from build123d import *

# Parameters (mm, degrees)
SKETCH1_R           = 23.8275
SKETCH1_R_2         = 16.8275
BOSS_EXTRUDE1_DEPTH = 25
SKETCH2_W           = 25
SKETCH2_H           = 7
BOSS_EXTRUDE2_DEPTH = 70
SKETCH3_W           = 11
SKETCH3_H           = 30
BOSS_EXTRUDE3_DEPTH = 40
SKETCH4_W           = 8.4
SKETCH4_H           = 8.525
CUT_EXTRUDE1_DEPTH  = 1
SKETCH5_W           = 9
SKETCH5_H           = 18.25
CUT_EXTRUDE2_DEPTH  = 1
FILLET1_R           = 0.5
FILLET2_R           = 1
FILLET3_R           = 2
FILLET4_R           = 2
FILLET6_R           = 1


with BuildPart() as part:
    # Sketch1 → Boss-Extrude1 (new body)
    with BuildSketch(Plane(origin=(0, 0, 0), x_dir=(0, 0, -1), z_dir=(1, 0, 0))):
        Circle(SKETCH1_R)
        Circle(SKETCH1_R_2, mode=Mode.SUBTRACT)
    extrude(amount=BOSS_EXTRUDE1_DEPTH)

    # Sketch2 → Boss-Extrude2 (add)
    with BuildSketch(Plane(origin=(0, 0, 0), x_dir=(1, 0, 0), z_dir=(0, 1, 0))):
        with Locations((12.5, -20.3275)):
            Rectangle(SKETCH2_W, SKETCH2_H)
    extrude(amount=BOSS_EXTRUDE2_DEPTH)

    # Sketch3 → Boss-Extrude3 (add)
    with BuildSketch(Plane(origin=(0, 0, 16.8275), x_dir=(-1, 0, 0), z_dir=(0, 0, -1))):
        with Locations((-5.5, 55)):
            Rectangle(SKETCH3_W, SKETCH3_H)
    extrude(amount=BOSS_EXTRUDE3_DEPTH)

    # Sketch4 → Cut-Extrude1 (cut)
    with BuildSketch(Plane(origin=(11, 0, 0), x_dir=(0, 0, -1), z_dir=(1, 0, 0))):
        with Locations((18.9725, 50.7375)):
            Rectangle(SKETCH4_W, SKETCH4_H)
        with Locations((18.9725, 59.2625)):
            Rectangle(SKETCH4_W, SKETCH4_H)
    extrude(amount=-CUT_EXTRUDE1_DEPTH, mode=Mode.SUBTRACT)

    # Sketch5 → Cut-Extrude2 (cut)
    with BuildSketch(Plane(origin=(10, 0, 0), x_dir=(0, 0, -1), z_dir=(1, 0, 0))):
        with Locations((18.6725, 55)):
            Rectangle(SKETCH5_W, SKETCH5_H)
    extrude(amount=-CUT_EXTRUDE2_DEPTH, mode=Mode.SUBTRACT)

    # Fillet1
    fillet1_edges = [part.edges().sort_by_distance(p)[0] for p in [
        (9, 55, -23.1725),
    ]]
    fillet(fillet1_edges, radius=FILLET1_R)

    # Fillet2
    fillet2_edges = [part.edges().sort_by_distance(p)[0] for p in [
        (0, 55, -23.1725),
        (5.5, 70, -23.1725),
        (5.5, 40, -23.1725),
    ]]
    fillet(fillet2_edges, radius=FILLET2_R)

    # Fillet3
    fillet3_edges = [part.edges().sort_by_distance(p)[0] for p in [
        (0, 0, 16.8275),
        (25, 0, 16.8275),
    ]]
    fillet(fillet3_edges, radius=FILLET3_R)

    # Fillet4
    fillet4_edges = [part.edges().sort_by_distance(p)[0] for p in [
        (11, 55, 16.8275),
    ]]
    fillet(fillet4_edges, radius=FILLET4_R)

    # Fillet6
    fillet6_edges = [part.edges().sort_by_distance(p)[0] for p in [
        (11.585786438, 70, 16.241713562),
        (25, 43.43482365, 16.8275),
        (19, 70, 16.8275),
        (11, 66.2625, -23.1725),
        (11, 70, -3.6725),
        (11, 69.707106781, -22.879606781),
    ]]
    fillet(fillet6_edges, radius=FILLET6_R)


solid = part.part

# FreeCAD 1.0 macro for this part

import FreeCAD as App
import Part
import Sketcher


def edges_at(feature, points):
    """Names of the edges that pass closest to the given points."""
    edges = feature.Shape.Edges
    near = lambda p: min(range(len(edges)), key=lambda i: edges[i].distToShape(Part.Vertex(*p))[0])
    return sorted({f"Edge{near(p) + 1}" for p in points})

doc = App.newDocument("Part")
body = doc.addObject("PartDesign::Body", "Body")

sketch1 = doc.addObject("Sketcher::SketchObject", "Sketch")
body.addObject(sketch1)
sketch1.AttachmentSupport = (doc.YZ_Plane, [""])
sketch1.MapMode = "FlatFace"
sketch1.addGeometry(Part.Circle(App.Vector(0, 0, 0), App.Vector(0, 0, 1), 24), False)
sketch1.addGeometry(Part.Circle(App.Vector(0, 0, 0), App.Vector(0, 0, 1), 17), False)
sketch1.addConstraint(Sketcher.Constraint("Coincident", 0, 3, -1, 1))
sketch1.addConstraint(Sketcher.Constraint("Coincident", 1, 3, -1, 1))
sketch1.addConstraint(Sketcher.Constraint("Diameter", 0, 47.655))
sketch1.addConstraint(Sketcher.Constraint("Diameter", 1, 33.655))
pad1 = doc.addObject("PartDesign::Pad", "Pad")
body.addObject(pad1)
pad1.Profile = sketch1
pad1.Length = 25

sketch2 = doc.addObject("Sketcher::SketchObject", "Sketch001")
body.addObject(sketch2)
sketch2.AttachmentSupport = (doc.XZ_Plane, [""])
sketch2.MapMode = "FlatFace"
sketch2.addGeometry(Part.LineSegment(App.Vector(0, 17, 0), App.Vector(0, 24, 0)), False)
sketch2.addGeometry(Part.LineSegment(App.Vector(0, 24, 0), App.Vector(25, 24, 0)), False)
sketch2.addGeometry(Part.LineSegment(App.Vector(25, 24, 0), App.Vector(25, 17, 0)), False)
sketch2.addGeometry(Part.LineSegment(App.Vector(25, 17, 0), App.Vector(0, 17, 0)), False)
sketch2.addConstraint(Sketcher.Constraint("Coincident", 0, 2, 1, 1))
sketch2.addConstraint(Sketcher.Constraint("Coincident", 1, 2, 2, 1))
sketch2.addConstraint(Sketcher.Constraint("Coincident", 2, 2, 3, 1))
sketch2.addConstraint(Sketcher.Constraint("Coincident", 3, 2, 0, 1))
sketch2.addConstraint(Sketcher.Constraint("Vertical", 0))
sketch2.addConstraint(Sketcher.Constraint("Horizontal", 1))
sketch2.addConstraint(Sketcher.Constraint("Vertical", 2))
sketch2.addConstraint(Sketcher.Constraint("Horizontal", 3))
sketch2.addConstraint(Sketcher.Constraint("PointOnObject", 0, 2, -2))
sketch2.addConstraint(Sketcher.Constraint("DistanceX", 1, 1, 1, 2, 25.0))
sketch2.addConstraint(Sketcher.Constraint("DistanceY", 0, 1, 0, 2, 7.0))
sketch2.addConstraint(Sketcher.Constraint("DistanceY", -1, 1, 0, 2, 23.8275))
pad2 = doc.addObject("PartDesign::Pad", "Pad001")
body.addObject(pad2)
pad2.Profile = sketch2
pad2.Length = 70
pad2.Reversed = True

sketch3 = doc.addObject("Sketcher::SketchObject", "Sketch002")
body.addObject(sketch3)
sketch3.AttachmentSupport = (doc.XY_Plane, [""])
sketch3.MapMode = "FlatFace"
sketch3.AttachmentOffset = App.Placement(App.Vector(0, 0, 16.8275), App.Rotation())
sketch3.addGeometry(Part.LineSegment(App.Vector(11, 70, 0), App.Vector(11, 40, 0)), False)
sketch3.addGeometry(Part.LineSegment(App.Vector(11, 40, 0), App.Vector(0, 40, 0)), False)
sketch3.addGeometry(Part.LineSegment(App.Vector(0, 40, 0), App.Vector(0, 70, 0)), False)
sketch3.addGeometry(Part.LineSegment(App.Vector(0, 70, 0), App.Vector(11, 70, 0)), False)
sketch3.addConstraint(Sketcher.Constraint("Coincident", 0, 2, 1, 1))
sketch3.addConstraint(Sketcher.Constraint("Coincident", 1, 2, 2, 1))
sketch3.addConstraint(Sketcher.Constraint("Coincident", 2, 2, 3, 1))
sketch3.addConstraint(Sketcher.Constraint("Coincident", 3, 2, 0, 1))
sketch3.addConstraint(Sketcher.Constraint("Vertical", 0))
sketch3.addConstraint(Sketcher.Constraint("Horizontal", 1))
sketch3.addConstraint(Sketcher.Constraint("Vertical", 2))
sketch3.addConstraint(Sketcher.Constraint("Horizontal", 3))
sketch3.addConstraint(Sketcher.Constraint("PointOnObject", 1, 2, -2))
sketch3.addConstraint(Sketcher.Constraint("DistanceX", 1, 2, 1, 1, 11.0))
sketch3.addConstraint(Sketcher.Constraint("DistanceY", 0, 2, 0, 1, 30.0))
sketch3.addConstraint(Sketcher.Constraint("DistanceY", -1, 1, 0, 2, 40.0))
pad3 = doc.addObject("PartDesign::Pad", "Pad002")
body.addObject(pad3)
pad3.Profile = sketch3
pad3.Length = 40
pad3.Reversed = True

sketch4 = doc.addObject("Sketcher::SketchObject", "Sketch003")
body.addObject(sketch4)
sketch4.AttachmentSupport = (doc.YZ_Plane, [""])
sketch4.MapMode = "FlatFace"
sketch4.AttachmentOffset = App.Placement(App.Vector(0, 0, 11), App.Rotation())
sketch4.addGeometry(Part.LineSegment(App.Vector(46, -15, 0), App.Vector(46, -23, 0)), False)
sketch4.addGeometry(Part.LineSegment(App.Vector(46, -23, 0), App.Vector(64, -23, 0)), False)
sketch4.addGeometry(Part.LineSegment(App.Vector(64, -23, 0), App.Vector(64, -15, 0)), False)
sketch4.addGeometry(Part.LineSegment(App.Vector(64, -15, 0), App.Vector(46, -15, 0)), False)
sketch4.addConstraint(Sketcher.Constraint("Coincident", 0, 2, 1, 1))
sketch4.addConstraint(Sketcher.Constraint("Coincident", 1, 2, 2, 1))
sketch4.addConstraint(Sketcher.Constraint("Coincident", 2, 2, 3, 1))
sketch4.addConstraint(Sketcher.Constraint("Coincident", 3, 2, 0, 1))
sketch4.addConstraint(Sketcher.Constraint("Vertical", 0))
sketch4.addConstraint(Sketcher.Constraint("Horizontal", 1))
sketch4.addConstraint(Sketcher.Constraint("Vertical", 2))
sketch4.addConstraint(Sketcher.Constraint("Horizontal", 3))
sketch4.addConstraint(Sketcher.Constraint("DistanceY", 0, 2, 0, 1, 8.4))
sketch4.addConstraint(Sketcher.Constraint("DistanceX", 1, 1, 1, 2, 17.05))
sketch4.addConstraint(Sketcher.Constraint("DistanceX", -1, 1, 0, 2, 46.475))
sketch4.addConstraint(Sketcher.Constraint("DistanceY", 0, 2, -1, 1, 23.1725))
pocket1 = doc.addObject("PartDesign::Pocket", "Pocket")
body.addObject(pocket1)
pocket1.Profile = sketch4
pocket1.Length = 1

sketch5 = doc.addObject("Sketcher::SketchObject", "Sketch004")
body.addObject(sketch5)
sketch5.AttachmentSupport = (doc.YZ_Plane, [""])
sketch5.MapMode = "FlatFace"
sketch5.AttachmentOffset = App.Placement(App.Vector(0, 0, 10), App.Rotation())
sketch5.addGeometry(Part.LineSegment(App.Vector(64, -14, 0), App.Vector(46, -14, 0)), False)
sketch5.addGeometry(Part.LineSegment(App.Vector(46, -14, 0), App.Vector(46, -23, 0)), False)
sketch5.addGeometry(Part.LineSegment(App.Vector(46, -23, 0), App.Vector(64, -23, 0)), False)
sketch5.addGeometry(Part.LineSegment(App.Vector(64, -23, 0), App.Vector(64, -14, 0)), False)
sketch5.addConstraint(Sketcher.Constraint("Coincident", 0, 2, 1, 1))
sketch5.addConstraint(Sketcher.Constraint("Coincident", 1, 2, 2, 1))
sketch5.addConstraint(Sketcher.Constraint("Coincident", 2, 2, 3, 1))
sketch5.addConstraint(Sketcher.Constraint("Coincident", 3, 2, 0, 1))
sketch5.addConstraint(Sketcher.Constraint("Horizontal", 0))
sketch5.addConstraint(Sketcher.Constraint("Vertical", 1))
sketch5.addConstraint(Sketcher.Constraint("Horizontal", 2))
sketch5.addConstraint(Sketcher.Constraint("Vertical", 3))
sketch5.addConstraint(Sketcher.Constraint("DistanceY", 1, 2, 1, 1, 9.0))
sketch5.addConstraint(Sketcher.Constraint("DistanceX", 0, 2, 0, 1, 18.25))
sketch5.addConstraint(Sketcher.Constraint("DistanceX", -1, 1, 0, 2, 45.875))
sketch5.addConstraint(Sketcher.Constraint("DistanceY", 0, 2, -1, 1, 14.1725))
pocket2 = doc.addObject("PartDesign::Pocket", "Pocket001")
body.addObject(pocket2)
pocket2.Profile = sketch5
pocket2.Length = 1
doc.recompute()

fillet = doc.addObject("PartDesign::Fillet", "Fillet")
body.addObject(fillet)
fillet.Base = (pocket2, edges_at(pocket2, [(9, 55, -23.172)]))
fillet.Radius = 0.5
doc.recompute()

fillet2 = doc.addObject("PartDesign::Fillet", "Fillet001")
body.addObject(fillet2)
fillet2.Base = (fillet, edges_at(fillet, [(0, 55, -23.172), (5.5, 70, -23.172), (5.5, 40, -23.172)]))
fillet2.Radius = 1
doc.recompute()

fillet3 = doc.addObject("PartDesign::Fillet", "Fillet002")
body.addObject(fillet3)
fillet3.Base = (fillet2, edges_at(fillet2, [(0, 0, 16.828), (25, 0, 16.828)]))
fillet3.Radius = 2
doc.recompute()

fillet4 = doc.addObject("PartDesign::Fillet", "Fillet003")
body.addObject(fillet4)
fillet4.Base = (fillet3, edges_at(fillet3, [(11, 55, 16.828)]))
fillet4.Radius = 2
doc.recompute()

fillet5 = doc.addObject("PartDesign::Fillet", "Fillet004")
body.addObject(fillet5)
fillet5.Base = (fillet4, edges_at(fillet4, [
    (11.586, 70, 16.242),
    (25, 43.435, 16.828),
    (19, 70, 16.828),
    (11, 66.263, -23.172),
    (11, 70, -3.672),
    (11, 69.707, -22.88),
]))
fillet5.Radius = 1

doc.recompute()
